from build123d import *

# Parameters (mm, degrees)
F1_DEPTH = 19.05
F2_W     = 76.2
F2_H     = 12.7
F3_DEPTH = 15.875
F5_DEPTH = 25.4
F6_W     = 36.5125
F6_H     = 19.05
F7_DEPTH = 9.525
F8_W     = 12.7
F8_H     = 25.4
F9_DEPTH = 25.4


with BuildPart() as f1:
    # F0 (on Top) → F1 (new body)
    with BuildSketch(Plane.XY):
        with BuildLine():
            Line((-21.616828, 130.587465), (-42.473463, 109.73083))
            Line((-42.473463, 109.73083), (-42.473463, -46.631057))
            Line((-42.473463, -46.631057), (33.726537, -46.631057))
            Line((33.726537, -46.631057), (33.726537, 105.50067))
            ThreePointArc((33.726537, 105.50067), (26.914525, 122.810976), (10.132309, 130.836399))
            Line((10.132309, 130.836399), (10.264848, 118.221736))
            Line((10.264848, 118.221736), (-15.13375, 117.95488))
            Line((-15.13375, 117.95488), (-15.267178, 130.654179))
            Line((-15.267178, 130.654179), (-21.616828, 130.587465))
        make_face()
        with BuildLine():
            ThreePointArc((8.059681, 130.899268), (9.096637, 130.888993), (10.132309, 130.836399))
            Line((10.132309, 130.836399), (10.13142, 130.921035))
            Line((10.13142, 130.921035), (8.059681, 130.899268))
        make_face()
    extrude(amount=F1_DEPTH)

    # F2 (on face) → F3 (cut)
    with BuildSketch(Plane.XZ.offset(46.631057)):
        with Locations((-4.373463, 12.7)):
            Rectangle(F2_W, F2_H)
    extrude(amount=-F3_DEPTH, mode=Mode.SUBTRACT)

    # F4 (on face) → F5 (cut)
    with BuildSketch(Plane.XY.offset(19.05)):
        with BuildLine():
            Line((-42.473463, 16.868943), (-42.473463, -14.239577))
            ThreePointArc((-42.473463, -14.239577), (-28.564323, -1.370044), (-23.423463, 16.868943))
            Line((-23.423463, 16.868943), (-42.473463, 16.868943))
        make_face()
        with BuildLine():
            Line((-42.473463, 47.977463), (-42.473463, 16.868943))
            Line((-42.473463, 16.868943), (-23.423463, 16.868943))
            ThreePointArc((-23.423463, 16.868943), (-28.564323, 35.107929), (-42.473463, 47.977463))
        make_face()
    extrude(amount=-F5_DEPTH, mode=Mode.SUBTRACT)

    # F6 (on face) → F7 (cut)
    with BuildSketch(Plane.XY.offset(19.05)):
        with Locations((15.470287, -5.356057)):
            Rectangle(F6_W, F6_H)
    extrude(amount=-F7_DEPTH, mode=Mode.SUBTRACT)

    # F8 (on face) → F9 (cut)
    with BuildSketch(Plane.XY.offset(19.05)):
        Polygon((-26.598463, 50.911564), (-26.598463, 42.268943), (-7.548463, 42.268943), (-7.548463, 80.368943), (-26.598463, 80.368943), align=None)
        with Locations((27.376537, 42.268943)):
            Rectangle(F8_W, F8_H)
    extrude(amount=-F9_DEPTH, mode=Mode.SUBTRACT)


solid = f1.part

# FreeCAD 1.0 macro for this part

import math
import FreeCAD as App
import Part
import Sketcher

V = App.Vector
Q = App.Units.Quantity

doc = App.newDocument("Part")
body = doc.addObject("PartDesign::Body", "Body")
body.AllowCompound = True

sketch1 = doc.addObject("Sketcher::SketchObject", "Sketch")
body.addObject(sketch1)
sketch1.AttachmentSupport = (doc.XY_Plane, [""])
sketch1.MapMode = "FlatFace"
sketch1.addGeometry([
    Part.LineSegment(V(-21.62, 130.59, 0), V(-42.47, 109.73, 0)),
    Part.LineSegment(V(-42.47, 109.73, 0), V(-42.47, -46.63, 0)),
    Part.LineSegment(V(-42.47, -46.63, 0), V(33.73, -46.63, 0)),
    Part.LineSegment(V(33.73, -46.63, 0), V(33.73, 105.5, 0)),
    Part.ArcOfCircle(Part.Circle(V(8.33, 105.5, 0), V(0, 0, 1), 25.4), math.radians(0), math.radians(86)),
    Part.LineSegment(V(10.13, 130.84, 0), V(10.26, 118.22, 0)),
    Part.LineSegment(V(10.26, 118.22, 0), V(-15.13, 117.95, 0)),
    Part.LineSegment(V(-15.13, 117.95, 0), V(-15.27, 130.65, 0)),
    Part.LineSegment(V(-15.27, 130.65, 0), V(-21.62, 130.59, 0)),
    Part.ArcOfCircle(Part.Circle(V(8.33, 105.5, 0), V(0, 0, 1), 25.4), math.radians(85.92), math.radians(90.6)),
    Part.LineSegment(V(10.13, 130.84, 0), V(10.13, 130.92, 0)),
    Part.LineSegment(V(10.13, 130.92, 0), V(8.06, 130.9, 0)),
], False)
sketch1.addConstraint([
    Sketcher.Constraint("Coincident", 0, 2, 1, 1),
    Sketcher.Constraint("Coincident", 1, 2, 2, 1),
    Sketcher.Constraint("Coincident", 2, 2, 3, 1),
    Sketcher.Constraint("Tangent", 3, 2, 4, 1),
    Sketcher.Constraint("Coincident", 4, 2, 5, 1),
    Sketcher.Constraint("Coincident", 5, 2, 6, 1),
    Sketcher.Constraint("Coincident", 6, 2, 7, 1),
    Sketcher.Constraint("Coincident", 7, 2, 8, 1),
    Sketcher.Constraint("Coincident", 8, 2, 0, 1),
    Sketcher.Constraint("Coincident", 9, 1, 10, 1),
    Sketcher.Constraint("Coincident", 10, 2, 11, 1),
    Sketcher.Constraint("Tangent", 11, 2, 9, 2),
    Sketcher.Constraint("Vertical", 1),
    Sketcher.Constraint("Horizontal", 2),
    Sketcher.Constraint("Vertical", 3),
    Sketcher.Constraint("Coincident", 9, 1, 4, 2),
    Sketcher.Constraint("Perpendicular", 5, 6),
    Sketcher.Constraint("Perpendicular", 6, 7),
    Sketcher.Constraint("Perpendicular", 7, 8),
    Sketcher.Constraint("Parallel", 8, 11),
    Sketcher.Constraint("Radius", 4, Q("1 in")),
    Sketcher.Constraint("DistanceX", 2, 1, 2, 2, Q("3 in")),
    Sketcher.Constraint("Distance", 6, Q("1 in")),
    Sketcher.Constraint("Angle", 0, Q("-135 deg")),
    Sketcher.Constraint("Distance", 7, Q("0.5 in")),
    Sketcher.Constraint("Distance", 8, Q("0.25 in")),
    Sketcher.Constraint("Radius", 9, 25.399663),
    Sketcher.Constraint("DistanceY", -1, 1, 4, 2, 130.836399),
    Sketcher.Constraint("DistanceX", 6, 2, 5, 2, 25.398598),
    Sketcher.Constraint("DistanceY", 5, 2, 10, 2, 12.699299),
    Sketcher.Constraint("DistanceX", 7, 2, 10, 2, 25.398598),
    Sketcher.Constraint("Distance", 5, 12.615359),
    Sketcher.Constraint("DistanceY", 1, 2, 1, 1, 156.361887),
    Sketcher.Constraint("DistanceY", 3, 1, 3, 2, 152.131727),
    Sketcher.Constraint("DistanceX", -1, 1, 4, 2, 10.132309),
])
pad1 = doc.addObject("PartDesign::Pad", "Pad")
body.addObject(pad1)
pad1.Profile = sketch1
pad1.Length = Q("0.75 in")

sketch2 = doc.addObject("Sketcher::SketchObject", "Sketch001")
body.addObject(sketch2)
sketch2.AttachmentSupport = (doc.XZ_Plane, [""])
sketch2.MapMode = "FlatFace"
sketch2.AttachmentOffset = App.Placement(V(0, 0, 46.631057), App.Rotation())
sketch2.addGeometry([
    Part.LineSegment(V(-42, 19, 0), V(-42, 6, 0)),
    Part.LineSegment(V(-42, 6, 0), V(34, 6, 0)),
    Part.LineSegment(V(34, 6, 0), V(34, 19, 0)),
    Part.LineSegment(V(34, 19, 0), V(-42, 19, 0)),
], False)
sketch2.addConstraint([
    Sketcher.Constraint("Coincident", 0, 2, 1, 1),
    Sketcher.Constraint("Coincident", 1, 2, 2, 1),
    Sketcher.Constraint("Coincident", 2, 2, 3, 1),
    Sketcher.Constraint("Coincident", 3, 2, 0, 1),
    Sketcher.Constraint("Vertical", 0),
    Sketcher.Constraint("Horizontal", 1),
    Sketcher.Constraint("Vertical", 2),
    Sketcher.Constraint("Horizontal", 3),
    Sketcher.Constraint("DistanceX", 1, 1, 1, 2, Q("3 in")),
    Sketcher.Constraint("DistanceY", 0, 2, 0, 1, Q("0.5 in")),
    Sketcher.Constraint("DistanceY", -1, 1, 0, 2, Q("0.25 in")),
    Sketcher.Constraint("DistanceX", 0, 2, -1, 1, 42.473463),
])
pocket1 = doc.addObject("PartDesign::Pocket", "Pocket")
body.addObject(pocket1)
pocket1.Profile = sketch2
pocket1.Length = Q("0.625 in")

sketch3 = doc.addObject("Sketcher::SketchObject", "Sketch002")
body.addObject(sketch3)
sketch3.AttachmentSupport = (doc.XY_Plane, [""])
sketch3.MapMode = "FlatFace"
sketch3.AttachmentOffset = App.Placement(V(0, 0, 0.75 * 25.4), App.Rotation())
sketch3.addGeometry([
    Part.ArcOfCircle(Part.Circle(V(-58, 17, 0), V(0, 0, 1), 35), math.radians(-63), math.radians(0)),
    Part.ArcOfCircle(Part.Circle(V(-58, 17, 0), V(0, 0, 1), 35), math.radians(0), math.radians(63)),
    Part.LineSegment(V(-42, 48, 0), V(-42, -14, 0)),
], False)
sketch3.addConstraint([
    Sketcher.Constraint("Tangent", 0, 2, 1, 1),
    Sketcher.Constraint("Coincident", 1, 2, 2, 1),
    Sketcher.Constraint("Coincident", 2, 2, 0, 1),
    Sketcher.Constraint("Vertical", 2),
    Sketcher.Constraint("Horizontal", 1, 3, 0, 2),
    Sketcher.Constraint("Radius", 0, Q("1.375 in")),
    Sketcher.Constraint("Radius", 1, Q("1.3750001 in")),
    Sketcher.Constraint("DistanceX", 1, 2, 0, 2, Q("0.75 in")),
    Sketcher.Constraint("DistanceY", -1, 1, 1, 3, 16.868942),
    Sketcher.Constraint("DistanceX", 0, 3, -1, 1, 58.348462),
])
pocket2 = doc.addObject("PartDesign::Pocket", "Pocket001")
body.addObject(pocket2)
pocket2.Profile = sketch3
pocket2.Length = Q("1 in")

sketch4 = doc.addObject("Sketcher::SketchObject", "Sketch003")
body.addObject(sketch4)
sketch4.AttachmentSupport = (doc.XY_Plane, [""])
sketch4.MapMode = "FlatFace"
sketch4.AttachmentOffset = App.Placement(V(0, 0, 0.75 * 25.4), App.Rotation())
sketch4.addGeometry([
    Part.LineSegment(V(-3, 4, 0), V(-3, -15, 0)),
    Part.LineSegment(V(-3, -15, 0), V(34, -15, 0)),
    Part.LineSegment(V(34, -15, 0), V(34, 4, 0)),
    Part.LineSegment(V(34, 4, 0), V(-3, 4, 0)),
], False)
sketch4.addConstraint([
    Sketcher.Constraint("Coincident", 0, 2, 1, 1),
    Sketcher.Constraint("Coincident", 1, 2, 2, 1),
    Sketcher.Constraint("Coincident", 2, 2, 3, 1),
    Sketcher.Constraint("Coincident", 3, 2, 0, 1),
    Sketcher.Constraint("Vertical", 0),
    Sketcher.Constraint("Horizontal", 1),
    Sketcher.Constraint("Vertical", 2),
    Sketcher.Constraint("Horizontal", 3),
    Sketcher.Constraint("DistanceY", 0, 2, 0, 1, Q("0.75 in")),
    Sketcher.Constraint("DistanceX", 1, 1, 1, 2, Q("1.4375 in")),
    Sketcher.Constraint("DistanceX", 0, 2, -1, 1, 2.785963),
    Sketcher.Constraint("DistanceY", 0, 2, -1, 1, 14.881057),
])
pocket3 = doc.addObject("PartDesign::Pocket", "Pocket002")
body.addObject(pocket3)
pocket3.Profile = sketch4
pocket3.Length = Q("0.375 in")

sketch5 = doc.addObject("Sketcher::SketchObject", "Sketch004")
body.addObject(sketch5)
sketch5.AttachmentSupport = (doc.XY_Plane, [""])
sketch5.MapMode = "FlatFace"
sketch5.AttachmentOffset = App.Placement(V(0, 0, 0.75 * 25.4), App.Rotation())
sketch5.addGeometry([
    Part.LineSegment(V(-27, 42, 0), V(-8, 42, 0)),
    Part.LineSegment(V(-8, 42, 0), V(-8, 80, 0)),
    Part.LineSegment(V(-8, 80, 0), V(-27, 80, 0)),
    Part.LineSegment(V(-27, 80, 0), V(-27, 42, 0)),
    Part.LineSegment(V(21, 55, 0), V(21, 30, 0)),
    Part.LineSegment(V(21, 30, 0), V(34, 30, 0)),
    Part.LineSegment(V(34, 30, 0), V(34, 55, 0)),
    Part.LineSegment(V(34, 55, 0), V(21, 55, 0)),
], False)
sketch5.addConstraint([
    Sketcher.Constraint("Coincident", 0, 2, 1, 1),
    Sketcher.Constraint("Coincident", 1, 2, 2, 1),
    Sketcher.Constraint("Coincident", 2, 2, 3, 1),
    Sketcher.Constraint("Coincident", 3, 2, 0, 1),
    Sketcher.Constraint("Coincident", 4, 2, 5, 1),
    Sketcher.Constraint("Coincident", 5, 2, 6, 1),
    Sketcher.Constraint("Coincident", 6, 2, 7, 1),
    Sketcher.Constraint("Coincident", 7, 2, 4, 1),
    Sketcher.Constraint("Horizontal", 0),
    Sketcher.Constraint("Vertical", 1),
    Sketcher.Constraint("Horizontal", 2),
    Sketcher.Constraint("Vertical", 3),
    Sketcher.Constraint("Vertical", 4),
    Sketcher.Constraint("Horizontal", 5),
    Sketcher.Constraint("Vertical", 6),
    Sketcher.Constraint("Horizontal", 7),
    Sketcher.Constraint("DistanceY", 4, 2, 4, 1, Q("1 in")),
    Sketcher.Constraint("DistanceX", 5, 1, 5, 2, Q("0.5 in")),
    Sketcher.Constraint("DistanceY", 1, 1, 1, 2, Q("1.5 in")),
    Sketcher.Constraint("DistanceY", 4, 2, 1, 2, Q("2 in")),
    Sketcher.Constraint("DistanceX", 0, 1, 0, 2, Q("0.75 in")),
    Sketcher.Constraint("DistanceX", 0, 2, 4, 2, Q("1.125 in")),
    Sketcher.Constraint("DistanceX", 0, 2, -1, 1, 7.548463),
    Sketcher.Constraint("DistanceY", -1, 1, 0, 2, 42.268943),
])
pocket4 = doc.addObject("PartDesign::Pocket", "Pocket003")
body.addObject(pocket4)
pocket4.Profile = sketch5
pocket4.Length = Q("1 in")

doc.recompute()
